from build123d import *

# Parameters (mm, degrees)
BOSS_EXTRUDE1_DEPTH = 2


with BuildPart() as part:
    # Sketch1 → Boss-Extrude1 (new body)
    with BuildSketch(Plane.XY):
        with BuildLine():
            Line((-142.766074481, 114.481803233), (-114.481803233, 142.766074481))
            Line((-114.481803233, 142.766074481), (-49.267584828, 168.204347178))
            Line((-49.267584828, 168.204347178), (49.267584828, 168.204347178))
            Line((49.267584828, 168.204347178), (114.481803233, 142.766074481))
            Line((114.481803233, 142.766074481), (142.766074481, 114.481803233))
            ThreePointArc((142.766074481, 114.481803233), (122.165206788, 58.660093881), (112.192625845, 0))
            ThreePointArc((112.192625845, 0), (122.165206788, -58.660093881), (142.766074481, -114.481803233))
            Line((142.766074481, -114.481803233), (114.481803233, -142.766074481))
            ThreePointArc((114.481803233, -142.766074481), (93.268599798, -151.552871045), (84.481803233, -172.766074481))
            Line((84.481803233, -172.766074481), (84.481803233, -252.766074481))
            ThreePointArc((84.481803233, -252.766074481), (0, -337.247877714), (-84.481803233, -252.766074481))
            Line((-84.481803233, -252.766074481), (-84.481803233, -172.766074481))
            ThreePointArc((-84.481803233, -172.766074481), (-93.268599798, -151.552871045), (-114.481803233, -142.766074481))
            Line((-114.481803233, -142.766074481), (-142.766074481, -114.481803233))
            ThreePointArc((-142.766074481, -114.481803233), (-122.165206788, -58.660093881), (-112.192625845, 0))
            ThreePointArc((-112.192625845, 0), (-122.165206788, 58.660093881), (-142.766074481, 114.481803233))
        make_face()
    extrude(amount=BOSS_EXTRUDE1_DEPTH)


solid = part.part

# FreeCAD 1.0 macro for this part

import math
import FreeCAD as App
import Part
import Sketcher
from FreeCAD import Vector
Q = App.Units.Quantity

doc = App.newDocument("Part")
body = doc.addObject("PartDesign::Body", "Body")

# Sketch on XY plane
sketch1 = doc.addObject("Sketcher::SketchObject", "Sketch")
body.addObject(sketch1)
sketch1.AttachmentSupport = (doc.XY_Plane, [""])
sketch1.MapMode = "FlatFace"
sketch1.addGeometry([
    Part.LineSegment(Vector(-114.481803, 142.766074, 0), Vector(-142.766074, 114.481803, 0)),  # 0
    Part.ArcOfCircle(Part.Circle(Vector(-433.105344, -24.379411, 0), Vector(0, 0, 1), 321.837425), math.radians(4.344357), math.radians(25.560496)),  # 1
    Part.ArcOfCircle(Part.Circle(Vector(-433.105344, 24.379411, 0), Vector(0, 0, 1), 321.837425), math.radians(-25.560496), math.radians(-4.344357)),  # 2
    Part.LineSegment(Vector(-142.766074, -114.481803, 0), Vector(-114.481803, -142.766074, 0)),  # 3
    Part.ArcOfCircle(Part.Circle(Vector(-114.481803, -172.766074, 0), Vector(0, 0, 1), 30), math.radians(0), math.radians(90)),  # 4
    Part.LineSegment(Vector(-84.481803, -172.766074, 0), Vector(-84.481803, -252.766074, 0)),  # 5
    Part.ArcOfCircle(Part.Circle(Vector(0, -252.766074, 0), Vector(0, 0, 1), 84.481803), math.radians(180), math.radians(360)),  # 6
    Part.LineSegment(Vector(84.481803, -252.766074, 0), Vector(84.481803, -172.766074, 0)),  # 7
    Part.ArcOfCircle(Part.Circle(Vector(114.481803, -172.766074, 0), Vector(0, 0, 1), 30), math.radians(90), math.radians(180)),  # 8
    Part.LineSegment(Vector(114.481803, -142.766074, 0), Vector(142.766074, -114.481803, 0)),  # 9
    Part.ArcOfCircle(Part.Circle(Vector(433.105344, 24.379411, 0), Vector(0, 0, 1), 321.837425), math.radians(-175.655643), math.radians(-154.439504)),  # 10
    Part.ArcOfCircle(Part.Circle(Vector(433.105344, -24.379411, 0), Vector(0, 0, 1), 321.837425), math.radians(154.439504), math.radians(175.655643)),  # 11
    Part.LineSegment(Vector(142.766074, 114.481803, 0), Vector(114.481803, 142.766074, 0)),  # 12
    Part.LineSegment(Vector(114.481803, 142.766074, 0), Vector(49.267585, 168.204347, 0)),  # 13
    Part.LineSegment(Vector(49.267585, 168.204347, 0), Vector(-49.267585, 168.204347, 0)),  # 14
    Part.LineSegment(Vector(-49.267585, 168.204347, 0), Vector(-114.481803, 142.766074, 0)),  # 15
], False)
sketch1.addConstraint([
    Sketcher.Constraint("Coincident", 0, 2, 1, 2),
    Sketcher.Constraint("Coincident", 1, 1, 2, 2),
    Sketcher.Constraint("Coincident", 2, 1, 3, 1),
    Sketcher.Constraint("Coincident", 3, 2, 4, 2),
    Sketcher.Constraint("Tangent", 4, 1, 5, 1),
    Sketcher.Constraint("Tangent", 5, 2, 6, 1),
    Sketcher.Constraint("Tangent", 6, 2, 7, 1),
    Sketcher.Constraint("Tangent", 7, 2, 8, 2),
    Sketcher.Constraint("Coincident", 8, 1, 9, 1),
    Sketcher.Constraint("Coincident", 9, 2, 10, 2),
    Sketcher.Constraint("Coincident", 10, 1, 11, 2),
    Sketcher.Constraint("Coincident", 11, 1, 12, 1),
    Sketcher.Constraint("Coincident", 12, 2, 13, 1),
    Sketcher.Constraint("Coincident", 13, 2, 14, 1),
    Sketcher.Constraint("Coincident", 14, 2, 15, 1),
    Sketcher.Constraint("Coincident", 15, 2, 0, 1),
    Sketcher.Constraint("Vertical", 5),
    Sketcher.Constraint("Vertical", 7),
    Sketcher.Constraint("Horizontal", 14),
    Sketcher.Constraint("Equal", 1, 2),
    Sketcher.Constraint("Equal", 4, 8),
    Sketcher.Constraint("Equal", 2, 10),
    Sketcher.Constraint("Equal", 10, 11),
    Sketcher.Constraint("Symmetric", 1, 3, 10, 3, -1, 1),
    Sketcher.Constraint("Symmetric", 2, 3, 11, 3, -1, 1),
    Sketcher.Constraint("Symmetric", 3, 2, 12, 2, -1, 1),
    Sketcher.Constraint("Symmetric", 8, 1, 15, 2, -1, 1),
    Sketcher.Constraint("Symmetric", 4, 3, 8, 3, -2),
    Sketcher.Constraint("Symmetric", 2, 3, 10, 3, -2),
    Sketcher.Constraint("Perpendicular", 0, 3),
    Sketcher.Constraint("Perpendicular", 3, 9),
    Sketcher.Constraint("Perpendicular", 9, 12),
    Sketcher.Constraint("Horizontal", 2, 1, 9, 2),
    Sketcher.Constraint("Vertical", 4, 3, 3, 2),
    Sketcher.Constraint("Vertical", 8, 1, 12, 2),
    Sketcher.Constraint("Equal", 13, 15),
    Sketcher.Constraint("Radius", 4, Q("30 mm")),
    Sketcher.Constraint("DistanceY", 5, 2, 5, 1, Q("80 mm")),
    Sketcher.Constraint("Distance", 0, Q("40 mm")),
    Sketcher.Constraint("Distance", 13, Q("70 mm")),
    Sketcher.Constraint("Radius", 1, Q("321.837425 mm")),
    Sketcher.Constraint("Radius", 6, Q("84.481803 mm")),
    Sketcher.Constraint("DistanceX", 14, 2, 14, 1, Q("98.53517 mm")),
    Sketcher.Constraint("DistanceY", 1, 3, -1, 1, Q("24.379411 mm")),
    Sketcher.Constraint("DistanceX", 1, 3, 4, 3, Q("318.623541 mm")),
])
pad1 = doc.addObject("PartDesign::Pad", "Pad")
body.addObject(pad1)
pad1.Profile = sketch1
pad1.Length = 2

doc.recompute()
